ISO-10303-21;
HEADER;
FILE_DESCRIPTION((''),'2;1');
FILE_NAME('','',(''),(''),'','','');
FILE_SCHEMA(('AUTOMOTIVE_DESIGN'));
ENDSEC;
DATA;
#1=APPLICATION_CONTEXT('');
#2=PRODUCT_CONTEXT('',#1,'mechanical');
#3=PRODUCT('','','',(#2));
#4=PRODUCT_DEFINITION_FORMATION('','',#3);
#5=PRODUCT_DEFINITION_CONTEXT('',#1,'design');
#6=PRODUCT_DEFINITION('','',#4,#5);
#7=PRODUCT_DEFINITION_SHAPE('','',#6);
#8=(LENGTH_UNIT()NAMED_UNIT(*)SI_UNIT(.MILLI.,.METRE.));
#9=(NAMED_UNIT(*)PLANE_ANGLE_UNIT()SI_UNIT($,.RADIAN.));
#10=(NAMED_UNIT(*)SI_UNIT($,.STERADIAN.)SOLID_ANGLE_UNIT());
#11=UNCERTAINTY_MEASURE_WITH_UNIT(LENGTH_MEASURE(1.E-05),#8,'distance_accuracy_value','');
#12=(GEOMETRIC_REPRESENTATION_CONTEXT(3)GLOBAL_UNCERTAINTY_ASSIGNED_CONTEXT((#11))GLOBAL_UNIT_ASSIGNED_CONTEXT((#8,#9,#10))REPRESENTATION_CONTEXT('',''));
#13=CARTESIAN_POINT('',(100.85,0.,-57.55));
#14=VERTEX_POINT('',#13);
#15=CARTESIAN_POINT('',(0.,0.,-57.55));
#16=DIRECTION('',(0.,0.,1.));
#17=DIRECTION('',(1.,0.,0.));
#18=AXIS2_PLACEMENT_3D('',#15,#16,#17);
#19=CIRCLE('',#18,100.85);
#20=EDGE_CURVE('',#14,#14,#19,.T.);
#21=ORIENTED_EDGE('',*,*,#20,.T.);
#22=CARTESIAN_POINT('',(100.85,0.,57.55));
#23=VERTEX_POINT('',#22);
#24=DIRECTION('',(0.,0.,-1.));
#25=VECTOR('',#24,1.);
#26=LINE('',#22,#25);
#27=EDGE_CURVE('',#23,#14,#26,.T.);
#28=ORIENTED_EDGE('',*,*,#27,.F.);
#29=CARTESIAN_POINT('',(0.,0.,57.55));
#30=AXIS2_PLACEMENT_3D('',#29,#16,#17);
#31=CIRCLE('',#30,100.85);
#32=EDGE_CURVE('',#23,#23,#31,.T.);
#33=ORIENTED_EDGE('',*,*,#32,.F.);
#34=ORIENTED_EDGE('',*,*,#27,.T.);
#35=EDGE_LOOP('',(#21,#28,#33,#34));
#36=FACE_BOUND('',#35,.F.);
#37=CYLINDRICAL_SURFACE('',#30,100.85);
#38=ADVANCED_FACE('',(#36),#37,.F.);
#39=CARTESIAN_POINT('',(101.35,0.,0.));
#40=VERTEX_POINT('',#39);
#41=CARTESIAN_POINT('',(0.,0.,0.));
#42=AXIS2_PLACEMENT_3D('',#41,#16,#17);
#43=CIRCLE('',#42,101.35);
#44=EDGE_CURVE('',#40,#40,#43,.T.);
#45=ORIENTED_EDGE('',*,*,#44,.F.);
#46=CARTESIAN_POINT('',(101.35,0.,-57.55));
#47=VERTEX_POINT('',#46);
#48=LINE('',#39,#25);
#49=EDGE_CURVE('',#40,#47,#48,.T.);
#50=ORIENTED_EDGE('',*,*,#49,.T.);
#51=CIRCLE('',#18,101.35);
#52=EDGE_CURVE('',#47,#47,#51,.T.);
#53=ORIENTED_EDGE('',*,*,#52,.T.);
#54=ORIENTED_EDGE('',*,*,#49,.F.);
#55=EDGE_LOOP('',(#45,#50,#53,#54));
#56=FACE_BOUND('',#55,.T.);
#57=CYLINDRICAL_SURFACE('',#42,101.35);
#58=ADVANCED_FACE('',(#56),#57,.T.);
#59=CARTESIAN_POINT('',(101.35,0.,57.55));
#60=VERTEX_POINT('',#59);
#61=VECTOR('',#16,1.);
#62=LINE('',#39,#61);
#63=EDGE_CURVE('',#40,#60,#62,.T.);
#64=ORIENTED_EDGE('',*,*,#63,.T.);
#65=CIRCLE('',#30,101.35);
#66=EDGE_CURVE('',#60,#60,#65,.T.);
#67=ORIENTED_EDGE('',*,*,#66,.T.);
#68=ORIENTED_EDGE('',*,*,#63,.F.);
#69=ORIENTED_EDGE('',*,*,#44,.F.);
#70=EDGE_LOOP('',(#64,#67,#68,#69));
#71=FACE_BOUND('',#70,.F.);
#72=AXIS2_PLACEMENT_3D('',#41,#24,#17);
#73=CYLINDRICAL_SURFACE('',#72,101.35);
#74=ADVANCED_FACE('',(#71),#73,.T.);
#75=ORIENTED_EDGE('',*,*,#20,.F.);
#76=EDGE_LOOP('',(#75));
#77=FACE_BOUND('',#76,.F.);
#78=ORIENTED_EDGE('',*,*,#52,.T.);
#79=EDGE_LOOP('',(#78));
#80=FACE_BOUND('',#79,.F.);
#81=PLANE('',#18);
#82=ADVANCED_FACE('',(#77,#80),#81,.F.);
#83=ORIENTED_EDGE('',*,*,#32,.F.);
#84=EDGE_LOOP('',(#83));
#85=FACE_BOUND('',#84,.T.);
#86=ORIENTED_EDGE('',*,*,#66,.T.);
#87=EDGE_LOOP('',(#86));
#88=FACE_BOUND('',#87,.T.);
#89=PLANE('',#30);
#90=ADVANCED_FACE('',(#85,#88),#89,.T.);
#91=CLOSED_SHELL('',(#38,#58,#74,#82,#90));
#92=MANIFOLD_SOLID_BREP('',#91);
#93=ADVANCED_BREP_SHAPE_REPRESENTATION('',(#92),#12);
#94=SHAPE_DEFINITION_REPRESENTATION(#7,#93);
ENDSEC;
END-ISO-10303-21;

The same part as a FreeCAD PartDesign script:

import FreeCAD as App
import Part
import Sketcher
from FreeCAD import Vector

doc = App.newDocument("Part")
params = doc.addObject("Spreadsheet::Sheet", "Params")
for row, (alias, value) in enumerate([
    ("sketch1_diameter", "202.7 mm"),
    ("pad1_length", "115.1 mm"),
    ("sketch2_diameter", "201.7 mm"),
], start=1):
    params.set(f"A{row}", alias)
    params.set(f"B{row}", "=" + value)
    params.setAlias(f"B{row}", alias)

body = doc.addObject("PartDesign::Body", "Body")

# Sketch on XY plane
sketch1 = body.newObject("Sketcher::SketchObject", "Sketch")
sketch1.AttachmentSupport = (doc.getObject("XY_Plane"), [""])
sketch1.MapMode = "FlatFace"
sketch1.addGeometry(Part.Circle(Vector(0, 0, 0), Vector(0, 0, 1), 101.35), False)
sketch1.addConstraint([
    Sketcher.Constraint("Coincident", 0, 3, -1, 1),
    Sketcher.Constraint("Diameter", 0, 202.7),
])
sketch1.setExpression("Constraints[1]", "Params.sketch1_diameter")
pad1 = body.newObject("PartDesign::Pad", "Pad")
pad1.Profile = sketch1
pad1.setExpression("Length", "Params.pad1_length")
pad1.Midplane = True

# Sketch on XY plane
sketch2 = body.newObject("Sketcher::SketchObject", "Sketch001")
sketch2.AttachmentSupport = (doc.getObject("XY_Plane"), [""])
sketch2.MapMode = "FlatFace"
sketch2.AttachmentOffset = App.Placement(Vector(0, 0, 57.55), App.Rotation())
sketch2.addGeometry(Part.Circle(Vector(0, 0, 0), Vector(0, 0, 1), 100.85), False)
sketch2.addConstraint([
    Sketcher.Constraint("Coincident", 0, 3, -1, 1),
    Sketcher.Constraint("Diameter", 0, 201.7),
])
sketch2.setExpression("Constraints[1]", "Params.sketch2_diameter")
pocket1 = body.newObject("PartDesign::Pocket", "Pocket")
pocket1.Profile = sketch2
pocket1.Type = "ThroughAll"

doc.recompute()
